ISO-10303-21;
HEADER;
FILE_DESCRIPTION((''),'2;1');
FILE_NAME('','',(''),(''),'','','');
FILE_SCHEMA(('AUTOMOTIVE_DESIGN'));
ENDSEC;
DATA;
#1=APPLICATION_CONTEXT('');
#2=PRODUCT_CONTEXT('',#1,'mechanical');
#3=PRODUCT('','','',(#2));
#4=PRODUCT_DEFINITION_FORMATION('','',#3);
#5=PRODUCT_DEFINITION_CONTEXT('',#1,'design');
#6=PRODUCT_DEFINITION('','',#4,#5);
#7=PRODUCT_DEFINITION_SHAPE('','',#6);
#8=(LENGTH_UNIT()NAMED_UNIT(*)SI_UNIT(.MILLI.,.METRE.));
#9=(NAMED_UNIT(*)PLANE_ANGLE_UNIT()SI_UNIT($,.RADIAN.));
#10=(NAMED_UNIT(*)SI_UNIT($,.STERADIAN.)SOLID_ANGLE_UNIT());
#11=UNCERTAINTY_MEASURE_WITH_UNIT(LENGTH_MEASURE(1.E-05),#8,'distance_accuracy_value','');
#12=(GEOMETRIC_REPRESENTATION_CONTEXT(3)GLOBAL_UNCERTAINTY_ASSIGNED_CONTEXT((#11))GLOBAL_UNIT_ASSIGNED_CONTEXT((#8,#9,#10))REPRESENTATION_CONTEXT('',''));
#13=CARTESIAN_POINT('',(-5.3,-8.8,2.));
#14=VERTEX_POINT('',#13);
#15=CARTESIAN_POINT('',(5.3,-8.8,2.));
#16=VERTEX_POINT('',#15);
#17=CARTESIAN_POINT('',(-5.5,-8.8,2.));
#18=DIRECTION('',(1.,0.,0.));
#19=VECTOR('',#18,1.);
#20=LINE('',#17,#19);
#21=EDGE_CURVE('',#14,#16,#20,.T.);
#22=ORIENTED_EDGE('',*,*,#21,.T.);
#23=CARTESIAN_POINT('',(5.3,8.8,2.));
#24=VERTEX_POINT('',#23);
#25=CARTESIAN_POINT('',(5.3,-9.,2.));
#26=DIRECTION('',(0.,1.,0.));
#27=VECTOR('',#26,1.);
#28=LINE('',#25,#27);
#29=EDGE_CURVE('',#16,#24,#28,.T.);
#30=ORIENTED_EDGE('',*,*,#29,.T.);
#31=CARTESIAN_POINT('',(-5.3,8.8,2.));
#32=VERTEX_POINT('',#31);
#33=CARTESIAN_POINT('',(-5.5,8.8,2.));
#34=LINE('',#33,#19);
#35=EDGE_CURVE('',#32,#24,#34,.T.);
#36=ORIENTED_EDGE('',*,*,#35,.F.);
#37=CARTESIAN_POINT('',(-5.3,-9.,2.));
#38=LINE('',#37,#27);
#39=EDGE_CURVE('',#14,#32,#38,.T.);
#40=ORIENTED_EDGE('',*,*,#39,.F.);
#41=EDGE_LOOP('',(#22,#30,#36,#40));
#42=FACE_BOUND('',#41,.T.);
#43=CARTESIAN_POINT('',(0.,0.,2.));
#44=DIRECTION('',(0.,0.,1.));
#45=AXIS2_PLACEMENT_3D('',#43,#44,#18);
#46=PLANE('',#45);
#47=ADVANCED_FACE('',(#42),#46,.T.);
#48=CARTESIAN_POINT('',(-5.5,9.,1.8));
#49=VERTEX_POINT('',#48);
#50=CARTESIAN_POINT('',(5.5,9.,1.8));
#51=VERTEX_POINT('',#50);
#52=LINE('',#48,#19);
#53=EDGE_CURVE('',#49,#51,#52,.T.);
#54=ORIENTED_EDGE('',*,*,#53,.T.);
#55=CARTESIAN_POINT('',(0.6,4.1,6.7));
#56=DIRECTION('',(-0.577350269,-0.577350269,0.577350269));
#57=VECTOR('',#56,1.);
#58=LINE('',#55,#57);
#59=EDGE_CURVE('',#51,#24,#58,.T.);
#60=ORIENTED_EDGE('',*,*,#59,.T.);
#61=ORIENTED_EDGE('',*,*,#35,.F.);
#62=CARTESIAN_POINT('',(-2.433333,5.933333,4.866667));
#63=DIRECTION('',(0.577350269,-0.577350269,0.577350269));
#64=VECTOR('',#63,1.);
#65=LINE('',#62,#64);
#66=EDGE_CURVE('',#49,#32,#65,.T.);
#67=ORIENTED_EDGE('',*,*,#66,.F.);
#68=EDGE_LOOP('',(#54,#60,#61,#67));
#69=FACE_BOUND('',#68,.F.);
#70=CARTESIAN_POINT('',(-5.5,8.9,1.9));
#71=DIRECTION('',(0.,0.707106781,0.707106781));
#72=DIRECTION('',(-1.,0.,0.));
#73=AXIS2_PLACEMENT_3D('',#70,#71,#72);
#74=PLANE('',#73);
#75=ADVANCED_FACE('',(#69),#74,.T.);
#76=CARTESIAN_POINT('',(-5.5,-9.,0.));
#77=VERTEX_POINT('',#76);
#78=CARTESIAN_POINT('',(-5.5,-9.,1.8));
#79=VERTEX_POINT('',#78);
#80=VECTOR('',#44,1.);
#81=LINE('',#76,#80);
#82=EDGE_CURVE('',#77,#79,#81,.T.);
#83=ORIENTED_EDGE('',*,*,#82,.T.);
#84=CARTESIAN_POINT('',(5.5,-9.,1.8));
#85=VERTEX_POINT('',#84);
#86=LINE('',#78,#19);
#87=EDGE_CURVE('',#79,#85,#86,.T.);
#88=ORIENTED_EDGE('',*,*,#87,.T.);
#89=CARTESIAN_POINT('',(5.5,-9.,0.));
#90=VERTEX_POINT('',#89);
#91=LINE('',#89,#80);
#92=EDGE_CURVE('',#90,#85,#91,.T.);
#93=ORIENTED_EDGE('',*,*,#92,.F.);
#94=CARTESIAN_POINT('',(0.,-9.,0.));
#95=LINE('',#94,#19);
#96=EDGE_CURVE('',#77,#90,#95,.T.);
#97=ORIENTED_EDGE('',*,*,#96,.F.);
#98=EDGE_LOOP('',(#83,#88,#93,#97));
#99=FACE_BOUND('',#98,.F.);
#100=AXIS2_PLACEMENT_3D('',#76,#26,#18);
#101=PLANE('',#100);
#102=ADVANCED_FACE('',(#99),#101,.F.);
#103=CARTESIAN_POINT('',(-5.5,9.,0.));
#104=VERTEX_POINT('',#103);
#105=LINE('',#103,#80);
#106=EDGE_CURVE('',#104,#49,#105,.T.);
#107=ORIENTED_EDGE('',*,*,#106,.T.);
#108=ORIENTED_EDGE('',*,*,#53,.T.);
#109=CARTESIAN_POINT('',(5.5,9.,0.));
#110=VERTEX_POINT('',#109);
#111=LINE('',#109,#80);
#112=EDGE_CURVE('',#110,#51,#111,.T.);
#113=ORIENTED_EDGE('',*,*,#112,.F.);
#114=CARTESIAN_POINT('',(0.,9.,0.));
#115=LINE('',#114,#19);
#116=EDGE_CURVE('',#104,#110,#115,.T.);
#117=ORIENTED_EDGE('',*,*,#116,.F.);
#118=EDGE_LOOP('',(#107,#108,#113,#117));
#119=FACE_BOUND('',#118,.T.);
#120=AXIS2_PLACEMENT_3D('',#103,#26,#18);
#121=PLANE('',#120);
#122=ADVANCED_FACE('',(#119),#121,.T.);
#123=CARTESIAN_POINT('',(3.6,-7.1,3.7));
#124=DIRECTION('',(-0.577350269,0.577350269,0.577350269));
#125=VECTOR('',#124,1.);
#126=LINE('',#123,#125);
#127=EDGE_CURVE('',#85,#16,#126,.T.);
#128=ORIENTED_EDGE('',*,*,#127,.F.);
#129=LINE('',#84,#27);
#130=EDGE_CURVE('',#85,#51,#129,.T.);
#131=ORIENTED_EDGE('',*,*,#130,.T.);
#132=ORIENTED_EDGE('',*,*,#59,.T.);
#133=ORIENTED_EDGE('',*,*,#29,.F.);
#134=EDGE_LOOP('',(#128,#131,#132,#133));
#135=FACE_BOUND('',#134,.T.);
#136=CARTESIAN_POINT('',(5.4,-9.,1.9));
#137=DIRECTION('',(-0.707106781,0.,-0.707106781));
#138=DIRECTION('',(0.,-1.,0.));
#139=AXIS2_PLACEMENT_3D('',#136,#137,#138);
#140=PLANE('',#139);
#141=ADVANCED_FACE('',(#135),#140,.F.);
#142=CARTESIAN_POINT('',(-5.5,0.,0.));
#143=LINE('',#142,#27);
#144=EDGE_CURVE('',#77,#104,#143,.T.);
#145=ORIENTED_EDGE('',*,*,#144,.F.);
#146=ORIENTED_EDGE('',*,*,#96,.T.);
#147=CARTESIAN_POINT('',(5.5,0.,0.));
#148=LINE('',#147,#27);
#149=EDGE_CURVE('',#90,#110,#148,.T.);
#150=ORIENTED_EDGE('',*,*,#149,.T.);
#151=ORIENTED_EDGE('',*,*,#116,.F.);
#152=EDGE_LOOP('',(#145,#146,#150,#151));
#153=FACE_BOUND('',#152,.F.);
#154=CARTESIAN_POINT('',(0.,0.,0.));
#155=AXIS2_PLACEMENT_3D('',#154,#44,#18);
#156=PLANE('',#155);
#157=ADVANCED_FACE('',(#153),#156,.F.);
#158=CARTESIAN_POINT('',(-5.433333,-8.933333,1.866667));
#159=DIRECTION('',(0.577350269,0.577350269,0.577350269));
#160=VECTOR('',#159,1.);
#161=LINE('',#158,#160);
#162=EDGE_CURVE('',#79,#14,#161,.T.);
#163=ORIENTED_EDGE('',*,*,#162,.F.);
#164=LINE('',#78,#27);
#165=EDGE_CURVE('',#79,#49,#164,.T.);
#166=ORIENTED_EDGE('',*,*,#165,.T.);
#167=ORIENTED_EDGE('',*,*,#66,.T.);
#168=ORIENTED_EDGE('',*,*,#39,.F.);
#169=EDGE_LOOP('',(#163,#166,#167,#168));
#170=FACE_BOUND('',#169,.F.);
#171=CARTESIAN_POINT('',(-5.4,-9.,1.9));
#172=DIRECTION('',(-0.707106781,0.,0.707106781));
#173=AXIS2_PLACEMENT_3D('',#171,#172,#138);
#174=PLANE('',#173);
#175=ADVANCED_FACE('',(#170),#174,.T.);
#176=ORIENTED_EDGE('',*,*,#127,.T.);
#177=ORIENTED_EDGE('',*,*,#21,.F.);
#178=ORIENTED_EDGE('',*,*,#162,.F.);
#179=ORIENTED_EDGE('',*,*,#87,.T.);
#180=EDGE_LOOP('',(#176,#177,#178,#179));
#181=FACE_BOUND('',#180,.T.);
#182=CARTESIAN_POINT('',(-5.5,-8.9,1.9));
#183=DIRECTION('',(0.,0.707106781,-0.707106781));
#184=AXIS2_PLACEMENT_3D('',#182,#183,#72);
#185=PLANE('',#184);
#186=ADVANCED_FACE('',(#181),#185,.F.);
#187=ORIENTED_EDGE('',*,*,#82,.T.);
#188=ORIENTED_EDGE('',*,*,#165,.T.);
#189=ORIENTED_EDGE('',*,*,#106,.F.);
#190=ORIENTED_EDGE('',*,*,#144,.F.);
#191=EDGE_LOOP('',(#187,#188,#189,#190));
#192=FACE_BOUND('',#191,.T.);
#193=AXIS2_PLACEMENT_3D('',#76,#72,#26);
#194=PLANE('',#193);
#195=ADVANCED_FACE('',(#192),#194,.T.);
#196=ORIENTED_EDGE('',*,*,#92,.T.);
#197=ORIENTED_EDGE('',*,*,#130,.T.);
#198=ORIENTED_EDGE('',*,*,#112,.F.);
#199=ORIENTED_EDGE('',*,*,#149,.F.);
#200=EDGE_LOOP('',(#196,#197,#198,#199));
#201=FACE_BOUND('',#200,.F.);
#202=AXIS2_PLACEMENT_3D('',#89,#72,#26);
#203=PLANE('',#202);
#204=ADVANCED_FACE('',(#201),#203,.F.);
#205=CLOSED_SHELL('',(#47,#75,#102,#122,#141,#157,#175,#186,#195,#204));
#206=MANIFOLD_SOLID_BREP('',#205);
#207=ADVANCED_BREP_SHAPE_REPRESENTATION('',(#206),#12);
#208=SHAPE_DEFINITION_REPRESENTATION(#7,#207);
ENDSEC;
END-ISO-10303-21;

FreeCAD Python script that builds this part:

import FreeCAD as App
import Part
import Sketcher
from FreeCAD import Vector


def edges_at(feature, points):
    """Names of the edges that pass closest to the given points."""
    edges = feature.Shape.Edges
    near = lambda p: min(range(len(edges)), key=lambda i: edges[i].distToShape(Part.Vertex(*p))[0])
    return sorted({f"Edge{near(p) + 1}" for p in points})


def add_polygon(sketch, points):
    """Adds a closed chain of lines whose ends are joined by coincident constraints."""
    first, n = sketch.GeometryCount, len(points)
    for a, b in zip(points, points[1:] + points[:1]):
        sketch.addGeometry(Part.LineSegment(App.Vector(*a, 0), App.Vector(*b, 0)), False)
    for i in range(n):
        sketch.addConstraint(Sketcher.Constraint("Coincident", first + i, 2, first + (i + 1) % n, 1))

doc = App.newDocument("Part")
params = doc.addObject("Spreadsheet::Sheet", "Params")
for row, (alias, value) in enumerate([
    ("sketch1_width", "11 mm"),
    ("sketch1_height", "18 mm"),
    ("pad1_length", "2 mm"),
    ("chamfer_size", "0.2 mm"),
], start=1):
    params.set(f"A{row}", alias)
    params.set(f"B{row}", "=" + value)
    params.setAlias(f"B{row}", alias)

body = doc.addObject("PartDesign::Body", "Body")

# Sketch on XY plane
sketch1 = body.newObject("Sketcher::SketchObject", "Sketch")
sketch1.AttachmentSupport = (doc.getObject("XY_Plane"), [""])
sketch1.MapMode = "FlatFace"
add_polygon(sketch1, [(-5.5, 9), (-5.5, -9), (5.5, -9), (5.5, 9)])  # lines 0-3
sketch1.addConstraint([
    Sketcher.Constraint("Vertical", 0),
    Sketcher.Constraint("Horizontal", 1),
    Sketcher.Constraint("Vertical", 2),
    Sketcher.Constraint("Horizontal", 3),
    Sketcher.Constraint("Symmetric", 0, 2, 2, 2, -1, 1),
    Sketcher.Constraint("DistanceX", 1, 1, 1, 2, 11.0),
    Sketcher.Constraint("DistanceY", 0, 2, 0, 1, 18.0),
])
sketch1.setExpression("Constraints[9]", "Params.sketch1_width")
sketch1.setExpression("Constraints[10]", "Params.sketch1_height")
pad1 = body.newObject("PartDesign::Pad", "Pad")
pad1.Profile = sketch1
pad1.setExpression("Length", "Params.pad1_length")
doc.recompute()

chamfer = body.newObject("PartDesign::Chamfer", "Chamfer")
chamfer.Base = (pad1, edges_at(pad1, [
    (5.5, 0, 2),
    (0, -9, 2),
    (-5.5, 0, 2),
    (0, 9, 2),
]))
chamfer.setExpression("Size", "Params.chamfer_size")

doc.recompute()
